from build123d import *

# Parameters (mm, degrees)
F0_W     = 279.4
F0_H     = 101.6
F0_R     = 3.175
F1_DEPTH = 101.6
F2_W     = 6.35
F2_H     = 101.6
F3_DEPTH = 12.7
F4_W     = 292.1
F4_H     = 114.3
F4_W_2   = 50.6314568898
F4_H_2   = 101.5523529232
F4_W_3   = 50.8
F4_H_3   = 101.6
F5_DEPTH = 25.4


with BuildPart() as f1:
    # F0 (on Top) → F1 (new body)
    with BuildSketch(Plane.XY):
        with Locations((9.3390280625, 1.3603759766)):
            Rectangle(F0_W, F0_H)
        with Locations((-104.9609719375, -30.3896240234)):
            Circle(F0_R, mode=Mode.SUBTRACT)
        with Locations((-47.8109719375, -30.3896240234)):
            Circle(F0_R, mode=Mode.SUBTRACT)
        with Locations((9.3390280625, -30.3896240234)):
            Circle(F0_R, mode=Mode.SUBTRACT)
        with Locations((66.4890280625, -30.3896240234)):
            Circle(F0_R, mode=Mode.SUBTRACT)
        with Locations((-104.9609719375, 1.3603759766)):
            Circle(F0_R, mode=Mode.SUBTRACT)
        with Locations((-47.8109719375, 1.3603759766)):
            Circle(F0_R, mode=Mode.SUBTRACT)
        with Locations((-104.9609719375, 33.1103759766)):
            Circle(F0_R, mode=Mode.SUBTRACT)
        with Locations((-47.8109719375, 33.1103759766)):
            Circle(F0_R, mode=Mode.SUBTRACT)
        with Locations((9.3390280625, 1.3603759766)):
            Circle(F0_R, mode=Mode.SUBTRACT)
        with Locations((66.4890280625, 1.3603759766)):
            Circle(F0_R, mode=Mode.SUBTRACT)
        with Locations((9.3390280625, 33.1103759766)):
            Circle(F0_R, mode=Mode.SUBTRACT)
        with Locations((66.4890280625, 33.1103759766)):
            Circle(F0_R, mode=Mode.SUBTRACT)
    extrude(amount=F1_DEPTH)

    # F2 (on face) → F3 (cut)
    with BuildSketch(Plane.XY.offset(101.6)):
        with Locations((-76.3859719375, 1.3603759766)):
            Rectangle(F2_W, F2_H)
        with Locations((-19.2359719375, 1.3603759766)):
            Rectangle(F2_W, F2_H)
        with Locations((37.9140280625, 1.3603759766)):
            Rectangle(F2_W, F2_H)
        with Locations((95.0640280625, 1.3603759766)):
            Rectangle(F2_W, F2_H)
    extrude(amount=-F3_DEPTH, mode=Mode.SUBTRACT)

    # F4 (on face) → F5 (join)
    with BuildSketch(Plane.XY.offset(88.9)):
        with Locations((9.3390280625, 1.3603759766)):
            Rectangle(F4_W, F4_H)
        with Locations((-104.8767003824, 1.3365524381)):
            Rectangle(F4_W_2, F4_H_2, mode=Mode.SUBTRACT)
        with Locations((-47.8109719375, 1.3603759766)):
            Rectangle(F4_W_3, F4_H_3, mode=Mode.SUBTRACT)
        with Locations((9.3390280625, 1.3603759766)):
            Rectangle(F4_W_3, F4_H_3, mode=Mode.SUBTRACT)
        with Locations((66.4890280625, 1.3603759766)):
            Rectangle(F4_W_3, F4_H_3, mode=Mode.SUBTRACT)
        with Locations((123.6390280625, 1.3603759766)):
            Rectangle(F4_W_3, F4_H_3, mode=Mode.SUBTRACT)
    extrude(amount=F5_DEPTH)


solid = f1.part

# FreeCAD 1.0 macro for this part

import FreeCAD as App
import Part
import Sketcher
from FreeCAD import Vector
Q = App.Units.Quantity

doc = App.newDocument("Part")
body = doc.addObject("PartDesign::Body", "Body")

# Sketch on XY plane
sketch1 = doc.addObject("Sketcher::SketchObject", "Sketch")
body.addObject(sketch1)
sketch1.AttachmentSupport = (doc.XY_Plane, [""])
sketch1.MapMode = "FlatFace"
sketch1.addGeometry(Part.LineSegment(Vector(-130.360972, 52.160376, 0), Vector(-130.360972, -49.439624, 0)), False)
sketch1.addGeometry(Part.LineSegment(Vector(-130.360972, -49.439624, 0), Vector(149.039028, -49.439624, 0)), False)
sketch1.addGeometry(Part.LineSegment(Vector(149.039028, -49.439624, 0), Vector(149.039028, 52.160376, 0)), False)
sketch1.addGeometry(Part.LineSegment(Vector(149.039028, 52.160376, 0), Vector(-130.360972, 52.160376, 0)), False)
sketch1.addGeometry(Part.Circle(Vector(-104.960972, -30.389624, 0), Vector(0, 0, 1), 3.175), False)
sketch1.addGeometry(Part.Circle(Vector(-47.810972, -30.389624, 0), Vector(0, 0, 1), 3.175), False)
sketch1.addGeometry(Part.Circle(Vector(9.339028, -30.389624, 0), Vector(0, 0, 1), 3.175), False)
sketch1.addGeometry(Part.Circle(Vector(66.489028, -30.389624, 0), Vector(0, 0, 1), 3.175), False)
sketch1.addGeometry(Part.Circle(Vector(-104.960972, 1.360376, 0), Vector(0, 0, 1), 3.175), False)
sketch1.addGeometry(Part.Circle(Vector(-47.810972, 1.360376, 0), Vector(0, 0, 1), 3.175), False)
sketch1.addGeometry(Part.Circle(Vector(-104.960972, 33.110376, 0), Vector(0, 0, 1), 3.175), False)
sketch1.addGeometry(Part.Circle(Vector(-47.810972, 33.110376, 0), Vector(0, 0, 1), 3.175), False)
sketch1.addGeometry(Part.Circle(Vector(9.339028, 1.360376, 0), Vector(0, 0, 1), 3.175), False)
sketch1.addGeometry(Part.Circle(Vector(66.489028, 1.360376, 0), Vector(0, 0, 1), 3.175), False)
sketch1.addGeometry(Part.Circle(Vector(9.339028, 33.110376, 0), Vector(0, 0, 1), 3.175), False)
sketch1.addGeometry(Part.Circle(Vector(66.489028, 33.110376, 0), Vector(0, 0, 1), 3.175), False)
sketch1.addConstraint(Sketcher.Constraint("Coincident", 0, 2, 1, 1))
sketch1.addConstraint(Sketcher.Constraint("Coincident", 1, 2, 2, 1))
sketch1.addConstraint(Sketcher.Constraint("Coincident", 2, 2, 3, 1))
sketch1.addConstraint(Sketcher.Constraint("Coincident", 3, 2, 0, 1))
sketch1.addConstraint(Sketcher.Constraint("Vertical", 0))
sketch1.addConstraint(Sketcher.Constraint("Horizontal", 1))
sketch1.addConstraint(Sketcher.Constraint("Vertical", 2))
sketch1.addConstraint(Sketcher.Constraint("Horizontal", 3))
sketch1.addConstraint(Sketcher.Constraint("Equal", 4, 5))
sketch1.addConstraint(Sketcher.Constraint("Equal", 5, 6))
sketch1.addConstraint(Sketcher.Constraint("Equal", 6, 7))
sketch1.addConstraint(Sketcher.Constraint("Equal", 7, 8))
sketch1.addConstraint(Sketcher.Constraint("Equal", 8, 9))
sketch1.addConstraint(Sketcher.Constraint("Equal", 9, 10))
sketch1.addConstraint(Sketcher.Constraint("Equal", 10, 11))
sketch1.addConstraint(Sketcher.Constraint("Equal", 11, 12))
sketch1.addConstraint(Sketcher.Constraint("Equal", 12, 13))
sketch1.addConstraint(Sketcher.Constraint("Equal", 13, 14))
sketch1.addConstraint(Sketcher.Constraint("Equal", 14, 15))
sketch1.addConstraint(Sketcher.Constraint("Horizontal", 4, 3, 5, 3))
sketch1.addConstraint(Sketcher.Constraint("Horizontal", 5, 3, 6, 3))
sketch1.addConstraint(Sketcher.Constraint("Horizontal", 6, 3, 7, 3))
sketch1.addConstraint(Sketcher.Constraint("Horizontal", 8, 3, 9, 3))
sketch1.addConstraint(Sketcher.Constraint("Horizontal", 10, 3, 11, 3))
sketch1.addConstraint(Sketcher.Constraint("Horizontal", 9, 3, 12, 3))
sketch1.addConstraint(Sketcher.Constraint("Horizontal", 12, 3, 13, 3))
sketch1.addConstraint(Sketcher.Constraint("Horizontal", 11, 3, 14, 3))
sketch1.addConstraint(Sketcher.Constraint("Horizontal", 14, 3, 15, 3))
sketch1.addConstraint(Sketcher.Constraint("Vertical", 4, 3, 8, 3))
sketch1.addConstraint(Sketcher.Constraint("Vertical", 5, 3, 9, 3))
sketch1.addConstraint(Sketcher.Constraint("Vertical", 8, 3, 10, 3))
sketch1.addConstraint(Sketcher.Constraint("Vertical", 9, 3, 11, 3))
sketch1.addConstraint(Sketcher.Constraint("Vertical", 6, 3, 12, 3))
sketch1.addConstraint(Sketcher.Constraint("Vertical", 7, 3, 13, 3))
sketch1.addConstraint(Sketcher.Constraint("Vertical", 12, 3, 14, 3))
sketch1.addConstraint(Sketcher.Constraint("Vertical", 13, 3, 15, 3))
sketch1.addConstraint(Sketcher.Constraint("Diameter", 4, Q("0.25 in")))
sketch1.addConstraint(Sketcher.Constraint("DistanceX", 1, 1, 1, 2, Q("11 in")))
sketch1.addConstraint(Sketcher.Constraint("DistanceY", 0, 2, 0, 1, Q("4 in")))
sketch1.addConstraint(Sketcher.Constraint("DistanceX", 0, 2, 4, 3, Q("1 in")))
sketch1.addConstraint(Sketcher.Constraint("DistanceY", 0, 2, 8, 3, Q("2 in")))
sketch1.addConstraint(Sketcher.Constraint("DistanceX", 4, 3, 6, 3, Q("4.5 in")))
sketch1.addConstraint(Sketcher.Constraint("DistanceX", 5, 3, 7, 3, Q("4.5 in")))
sketch1.addConstraint(Sketcher.Constraint("DistanceY", 4, 3, 10, 3, Q("2.5 in")))
sketch1.addConstraint(Sketcher.Constraint("DistanceX", 4, 3, 5, 3, Q("2.25 in")))
sketch1.addConstraint(Sketcher.Constraint("DistanceY", 4, 3, 8, 3, Q("1.25 in")))
sketch1.addConstraint(Sketcher.Constraint("DistanceX", 4, 3, -1, 1, 104.960972))
sketch1.addConstraint(Sketcher.Constraint("DistanceY", 4, 3, -1, 1, 30.389624))
pad1 = doc.addObject("PartDesign::Pad", "Pad")
body.addObject(pad1)
pad1.Profile = sketch1
pad1.Length = Q("4 in")

# Sketch on XY plane
sketch2 = doc.addObject("Sketcher::SketchObject", "Sketch001")
body.addObject(sketch2)
sketch2.AttachmentSupport = (doc.XY_Plane, [""])
sketch2.MapMode = "FlatFace"
sketch2.AttachmentOffset = App.Placement(Vector(0, 0, 4 * 25.4), App.Rotation())
sketch2.addGeometry(Part.LineSegment(Vector(-79.560972, 52.160376, 0), Vector(-79.560972, -49.439624, 0)), False)
sketch2.addGeometry(Part.LineSegment(Vector(-79.560972, -49.439624, 0), Vector(-73.210972, -49.439624, 0)), False)
sketch2.addGeometry(Part.LineSegment(Vector(-73.210972, -49.439624, 0), Vector(-73.210972, 52.160376, 0)), False)
sketch2.addGeometry(Part.LineSegment(Vector(-73.210972, 52.160376, 0), Vector(-79.560972, 52.160376, 0)), False)
sketch2.addGeometry(Part.LineSegment(Vector(-22.410972, 52.160376, 0), Vector(-22.410972, -49.439624, 0)), False)
sketch2.addGeometry(Part.LineSegment(Vector(-22.410972, -49.439624, 0), Vector(-16.060972, -49.439624, 0)), False)
sketch2.addGeometry(Part.LineSegment(Vector(-16.060972, -49.439624, 0), Vector(-16.060972, 52.160376, 0)), False)
sketch2.addGeometry(Part.LineSegment(Vector(-16.060972, 52.160376, 0), Vector(-22.410972, 52.160376, 0)), False)
sketch2.addGeometry(Part.LineSegment(Vector(34.739028, 52.160376, 0), Vector(34.739028, -49.439624, 0)), False)
sketch2.addGeometry(Part.LineSegment(Vector(34.739028, -49.439624, 0), Vector(41.089028, -49.439624, 0)), False)
sketch2.addGeometry(Part.LineSegment(Vector(41.089028, -49.439624, 0), Vector(41.089028, 52.160376, 0)), False)
sketch2.addGeometry(Part.LineSegment(Vector(41.089028, 52.160376, 0), Vector(34.739028, 52.160376, 0)), False)
sketch2.addGeometry(Part.LineSegment(Vector(91.889028, 52.160376, 0), Vector(91.889028, -49.439624, 0)), False)
sketch2.addGeometry(Part.LineSegment(Vector(91.889028, -49.439624, 0), Vector(98.239028, -49.439624, 0)), False)
sketch2.addGeometry(Part.LineSegment(Vector(98.239028, -49.439624, 0), Vector(98.239028, 52.160376, 0)), False)
sketch2.addGeometry(Part.LineSegment(Vector(98.239028, 52.160376, 0), Vector(91.889028, 52.160376, 0)), False)
sketch2.addConstraint(Sketcher.Constraint("Coincident", 0, 2, 1, 1))
sketch2.addConstraint(Sketcher.Constraint("Coincident", 1, 2, 2, 1))
sketch2.addConstraint(Sketcher.Constraint("Coincident", 2, 2, 3, 1))
sketch2.addConstraint(Sketcher.Constraint("Coincident", 3, 2, 0, 1))
sketch2.addConstraint(Sketcher.Constraint("Coincident", 4, 2, 5, 1))
sketch2.addConstraint(Sketcher.Constraint("Coincident", 5, 2, 6, 1))
sketch2.addConstraint(Sketcher.Constraint("Coincident", 6, 2, 7, 1))
sketch2.addConstraint(Sketcher.Constraint("Coincident", 7, 2, 4, 1))
sketch2.addConstraint(Sketcher.Constraint("Coincident", 8, 2, 9, 1))
sketch2.addConstraint(Sketcher.Constraint("Coincident", 9, 2, 10, 1))
sketch2.addConstraint(Sketcher.Constraint("Coincident", 10, 2, 11, 1))
sketch2.addConstraint(Sketcher.Constraint("Coincident", 11, 2, 8, 1))
sketch2.addConstraint(Sketcher.Constraint("Coincident", 12, 2, 13, 1))
sketch2.addConstraint(Sketcher.Constraint("Coincident", 13, 2, 14, 1))
sketch2.addConstraint(Sketcher.Constraint("Coincident", 14, 2, 15, 1))
sketch2.addConstraint(Sketcher.Constraint("Coincident", 15, 2, 12, 1))
sketch2.addConstraint(Sketcher.Constraint("Vertical", 0))
sketch2.addConstraint(Sketcher.Constraint("Horizontal", 1))
sketch2.addConstraint(Sketcher.Constraint("Vertical", 2))
sketch2.addConstraint(Sketcher.Constraint("Horizontal", 3))
sketch2.addConstraint(Sketcher.Constraint("Vertical", 4))
sketch2.addConstraint(Sketcher.Constraint("Horizontal", 5))
sketch2.addConstraint(Sketcher.Constraint("Vertical", 6))
sketch2.addConstraint(Sketcher.Constraint("Horizontal", 7))
sketch2.addConstraint(Sketcher.Constraint("Vertical", 8))
sketch2.addConstraint(Sketcher.Constraint("Horizontal", 9))
sketch2.addConstraint(Sketcher.Constraint("Vertical", 10))
sketch2.addConstraint(Sketcher.Constraint("Horizontal", 11))
sketch2.addConstraint(Sketcher.Constraint("Vertical", 12))
sketch2.addConstraint(Sketcher.Constraint("Horizontal", 13))
sketch2.addConstraint(Sketcher.Constraint("Vertical", 14))
sketch2.addConstraint(Sketcher.Constraint("Horizontal", 15))
sketch2.addConstraint(Sketcher.Constraint("Horizontal", 1, 2, 4, 2))
sketch2.addConstraint(Sketcher.Constraint("Horizontal", 3, 2, 6, 2))
sketch2.addConstraint(Sketcher.Constraint("Horizontal", 5, 2, 8, 2))
sketch2.addConstraint(Sketcher.Constraint("Horizontal", 7, 2, 10, 2))
sketch2.addConstraint(Sketcher.Constraint("Horizontal", 9, 2, 12, 2))
sketch2.addConstraint(Sketcher.Constraint("Horizontal", 11, 2, 14, 2))
sketch2.addConstraint(Sketcher.Constraint("Equal", 3, 5))
sketch2.addConstraint(Sketcher.Constraint("Equal", 7, 9))
sketch2.addConstraint(Sketcher.Constraint("Equal", 11, 13))
sketch2.addConstraint(Sketcher.Constraint("DistanceY", 0, 2, 0, 1, Q("4 in")))
sketch2.addConstraint(Sketcher.Constraint("DistanceX", 1, 2, 4, 2, Q("2 in")))
sketch2.addConstraint(Sketcher.Constraint("DistanceX", 5, 2, 8, 2, Q("2 in")))
sketch2.addConstraint(Sketcher.Constraint("DistanceX", 9, 2, 12, 2, Q("2 in")))
sketch2.addConstraint(Sketcher.Constraint("DistanceX", 1, 1, 1, 2, Q("0.25 in")))
sketch2.addConstraint(Sketcher.Constraint("DistanceX", 0, 2, -1, 1, 79.560972))
sketch2.addConstraint(Sketcher.Constraint("DistanceY", 0, 2, -1, 1, 49.439624))
pocket1 = doc.addObject("PartDesign::Pocket", "Pocket")
body.addObject(pocket1)
pocket1.Profile = sketch2
pocket1.Length = Q("0.5 in")

# Sketch on XY plane
sketch3 = doc.addObject("Sketcher::SketchObject", "Sketch002")
body.addObject(sketch3)
sketch3.AttachmentSupport = (doc.XY_Plane, [""])
sketch3.MapMode = "FlatFace"
sketch3.AttachmentOffset = App.Placement(Vector(0, 0, 3.5 * 25.4), App.Rotation())
sketch3.addGeometry(Part.LineSegment(Vector(-136.710972, 58.510376, 0), Vector(-136.710972, -55.789624, 0)), False)
sketch3.addGeometry(Part.LineSegment(Vector(-136.710972, -55.789624, 0), Vector(155.389028, -55.789624, 0)), False)
sketch3.addGeometry(Part.LineSegment(Vector(155.389028, -55.789624, 0), Vector(155.389028, 58.510376, 0)), False)
sketch3.addGeometry(Part.LineSegment(Vector(155.389028, 58.510376, 0), Vector(-136.710972, 58.510376, 0)), False)
sketch3.addGeometry(Part.LineSegment(Vector(-79.560972, -49.439624, 0), Vector(-130.192429, -49.439624, 0)), False)
sketch3.addGeometry(Part.LineSegment(Vector(-130.192429, -49.439624, 0), Vector(-130.192429, 52.112729, 0)), False)
sketch3.addGeometry(Part.LineSegment(Vector(-130.192429, 52.112729, 0), Vector(-79.560972, 52.112729, 0)), False)
sketch3.addGeometry(Part.LineSegment(Vector(-79.560972, 52.112729, 0), Vector(-79.560972, -49.439624, 0)), False)
sketch3.addGeometry(Part.LineSegment(Vector(-22.410972, -49.439624, 0), Vector(-73.210972, -49.439624, 0)), False)
sketch3.addGeometry(Part.LineSegment(Vector(-73.210972, -49.439624, 0), Vector(-73.210972, 52.160376, 0)), False)
sketch3.addGeometry(Part.LineSegment(Vector(-73.210972, 52.160376, 0), Vector(-22.410972, 52.160376, 0)), False)
sketch3.addGeometry(Part.LineSegment(Vector(-22.410972, 52.160376, 0), Vector(-22.410972, -49.439624, 0)), False)
sketch3.addGeometry(Part.LineSegment(Vector(34.739028, -49.439624, 0), Vector(-16.060972, -49.439624, 0)), False)
sketch3.addGeometry(Part.LineSegment(Vector(-16.060972, -49.439624, 0), Vector(-16.060972, 52.160376, 0)), False)
sketch3.addGeometry(Part.LineSegment(Vector(-16.060972, 52.160376, 0), Vector(34.739028, 52.160376, 0)), False)
sketch3.addGeometry(Part.LineSegment(Vector(34.739028, 52.160376, 0), Vector(34.739028, -49.439624, 0)), False)
sketch3.addGeometry(Part.LineSegment(Vector(91.889028, -49.439624, 0), Vector(41.089028, -49.439624, 0)), False)
sketch3.addGeometry(Part.LineSegment(Vector(41.089028, -49.439624, 0), Vector(41.089028, 52.160376, 0)), False)
sketch3.addGeometry(Part.LineSegment(Vector(41.089028, 52.160376, 0), Vector(91.889028, 52.160376, 0)), False)
sketch3.addGeometry(Part.LineSegment(Vector(91.889028, 52.160376, 0), Vector(91.889028, -49.439624, 0)), False)
sketch3.addGeometry(Part.LineSegment(Vector(149.039028, -49.439624, 0), Vector(98.239028, -49.439624, 0)), False)
sketch3.addGeometry(Part.LineSegment(Vector(98.239028, -49.439624, 0), Vector(98.239028, 52.160376, 0)), False)
sketch3.addGeometry(Part.LineSegment(Vector(98.239028, 52.160376, 0), Vector(149.039028, 52.160376, 0)), False)
sketch3.addGeometry(Part.LineSegment(Vector(149.039028, 52.160376, 0), Vector(149.039028, -49.439624, 0)), False)
sketch3.addConstraint(Sketcher.Constraint("Coincident", 0, 2, 1, 1))
sketch3.addConstraint(Sketcher.Constraint("Coincident", 1, 2, 2, 1))
sketch3.addConstraint(Sketcher.Constraint("Coincident", 2, 2, 3, 1))
sketch3.addConstraint(Sketcher.Constraint("Coincident", 3, 2, 0, 1))
sketch3.addConstraint(Sketcher.Constraint("Coincident", 4, 2, 5, 1))
sketch3.addConstraint(Sketcher.Constraint("Coincident", 5, 2, 6, 1))
sketch3.addConstraint(Sketcher.Constraint("Coincident", 6, 2, 7, 1))
sketch3.addConstraint(Sketcher.Constraint("Coincident", 7, 2, 4, 1))
sketch3.addConstraint(Sketcher.Constraint("Coincident", 8, 2, 9, 1))
sketch3.addConstraint(Sketcher.Constraint("Coincident", 9, 2, 10, 1))
sketch3.addConstraint(Sketcher.Constraint("Coincident", 10, 2, 11, 1))
sketch3.addConstraint(Sketcher.Constraint("Coincident", 11, 2, 8, 1))
sketch3.addConstraint(Sketcher.Constraint("Coincident", 12, 2, 13, 1))
sketch3.addConstraint(Sketcher.Constraint("Coincident", 13, 2, 14, 1))
sketch3.addConstraint(Sketcher.Constraint("Coincident", 14, 2, 15, 1))
sketch3.addConstraint(Sketcher.Constraint("Coincident", 15, 2, 12, 1))
sketch3.addConstraint(Sketcher.Constraint("Coincident", 16, 2, 17, 1))
sketch3.addConstraint(Sketcher.Constraint("Coincident", 17, 2, 18, 1))
sketch3.addConstraint(Sketcher.Constraint("Coincident", 18, 2, 19, 1))
sketch3.addConstraint(Sketcher.Constraint("Coincident", 19, 2, 16, 1))
sketch3.addConstraint(Sketcher.Constraint("Coincident", 20, 2, 21, 1))
sketch3.addConstraint(Sketcher.Constraint("Coincident", 21, 2, 22, 1))
sketch3.addConstraint(Sketcher.Constraint("Coincident", 22, 2, 23, 1))
sketch3.addConstraint(Sketcher.Constraint("Coincident", 23, 2, 20, 1))
sketch3.addConstraint(Sketcher.Constraint("Vertical", 0))
sketch3.addConstraint(Sketcher.Constraint("Horizontal", 1))
sketch3.addConstraint(Sketcher.Constraint("Vertical", 2))
sketch3.addConstraint(Sketcher.Constraint("Horizontal", 3))
sketch3.addConstraint(Sketcher.Constraint("Horizontal", 4))
sketch3.addConstraint(Sketcher.Constraint("Vertical", 5))
sketch3.addConstraint(Sketcher.Constraint("Horizontal", 6))
sketch3.addConstraint(Sketcher.Constraint("Vertical", 7))
sketch3.addConstraint(Sketcher.Constraint("Horizontal", 8))
sketch3.addConstraint(Sketcher.Constraint("Vertical", 9))
sketch3.addConstraint(Sketcher.Constraint("Horizontal", 10))
sketch3.addConstraint(Sketcher.Constraint("Vertical", 11))
sketch3.addConstraint(Sketcher.Constraint("Horizontal", 12))
sketch3.addConstraint(Sketcher.Constraint("Vertical", 13))
sketch3.addConstraint(Sketcher.Constraint("Horizontal", 14))
sketch3.addConstraint(Sketcher.Constraint("Vertical", 15))
sketch3.addConstraint(Sketcher.Constraint("Horizontal", 16))
sketch3.addConstraint(Sketcher.Constraint("Vertical", 17))
sketch3.addConstraint(Sketcher.Constraint("Horizontal", 18))
sketch3.addConstraint(Sketcher.Constraint("Vertical", 19))
sketch3.addConstraint(Sketcher.Constraint("Horizontal", 20))
sketch3.addConstraint(Sketcher.Constraint("Vertical", 21))
sketch3.addConstraint(Sketcher.Constraint("Horizontal", 22))
sketch3.addConstraint(Sketcher.Constraint("Vertical", 23))
sketch3.addConstraint(Sketcher.Constraint("Horizontal", 7, 2, 8, 2))
sketch3.addConstraint(Sketcher.Constraint("Horizontal", 11, 2, 12, 2))
sketch3.addConstraint(Sketcher.Constraint("Horizontal", 10, 2, 13, 2))
sketch3.addConstraint(Sketcher.Constraint("Horizontal", 15, 2, 16, 2))
sketch3.addConstraint(Sketcher.Constraint("Horizontal", 14, 2, 17, 2))
sketch3.addConstraint(Sketcher.Constraint("Horizontal", 19, 2, 20, 2))
sketch3.addConstraint(Sketcher.Constraint("Horizontal", 18, 2, 21, 2))
sketch3.addConstraint(Sketcher.Constraint("Equal", 10, 12))
sketch3.addConstraint(Sketcher.Constraint("Equal", 14, 16))
sketch3.addConstraint(Sketcher.Constraint("Equal", 18, 20))
sketch3.addConstraint(Sketcher.Constraint("DistanceX", 8, 2, 8, 1, Q("2 in")))
sketch3.addConstraint(Sketcher.Constraint("DistanceY", 9, 1, 9, 2, Q("4 in")))
sketch3.addConstraint(Sketcher.Constraint("DistanceX", 1, 1, 1, 2, Q("11.5 in")))
sketch3.addConstraint(Sketcher.Constraint("DistanceY", 0, 2, 0, 1, Q("4.5 in")))
sketch3.addConstraint(Sketcher.Constraint("DistanceX", 0, 2, 8, 2, Q("2.5 in")))
sketch3.addConstraint(Sketcher.Constraint("DistanceX", 7, 2, 12, 2, Q("2.5 in")))
sketch3.addConstraint(Sketcher.Constraint("DistanceX", 11, 2, 16, 2, Q("2.5 in")))
sketch3.addConstraint(Sketcher.Constraint("DistanceX", 15, 2, 20, 2, Q("2.5 in")))
sketch3.addConstraint(Sketcher.Constraint("DistanceY", 0, 2, 4, 2, Q("0.25 in")))
sketch3.addConstraint(Sketcher.Constraint("DistanceX", 3, 2, 6, 2, Q("2.25 in")))
sketch3.addConstraint(Sketcher.Constraint("DistanceX", 4, 2, 4, 1, 50.631457))
sketch3.addConstraint(Sketcher.Constraint("DistanceY", 5, 1, 5, 2, 101.552353))
sketch3.addConstraint(Sketcher.Constraint("DistanceX", 0, 2, -1, 1, 136.710972))
sketch3.addConstraint(Sketcher.Constraint("DistanceY", -1, 1, 5, 2, 52.112729))
pad2 = doc.addObject("PartDesign::Pad", "Pad001")
body.addObject(pad2)
pad2.Profile = sketch3
pad2.Length = Q("1 in")

doc.recompute()
